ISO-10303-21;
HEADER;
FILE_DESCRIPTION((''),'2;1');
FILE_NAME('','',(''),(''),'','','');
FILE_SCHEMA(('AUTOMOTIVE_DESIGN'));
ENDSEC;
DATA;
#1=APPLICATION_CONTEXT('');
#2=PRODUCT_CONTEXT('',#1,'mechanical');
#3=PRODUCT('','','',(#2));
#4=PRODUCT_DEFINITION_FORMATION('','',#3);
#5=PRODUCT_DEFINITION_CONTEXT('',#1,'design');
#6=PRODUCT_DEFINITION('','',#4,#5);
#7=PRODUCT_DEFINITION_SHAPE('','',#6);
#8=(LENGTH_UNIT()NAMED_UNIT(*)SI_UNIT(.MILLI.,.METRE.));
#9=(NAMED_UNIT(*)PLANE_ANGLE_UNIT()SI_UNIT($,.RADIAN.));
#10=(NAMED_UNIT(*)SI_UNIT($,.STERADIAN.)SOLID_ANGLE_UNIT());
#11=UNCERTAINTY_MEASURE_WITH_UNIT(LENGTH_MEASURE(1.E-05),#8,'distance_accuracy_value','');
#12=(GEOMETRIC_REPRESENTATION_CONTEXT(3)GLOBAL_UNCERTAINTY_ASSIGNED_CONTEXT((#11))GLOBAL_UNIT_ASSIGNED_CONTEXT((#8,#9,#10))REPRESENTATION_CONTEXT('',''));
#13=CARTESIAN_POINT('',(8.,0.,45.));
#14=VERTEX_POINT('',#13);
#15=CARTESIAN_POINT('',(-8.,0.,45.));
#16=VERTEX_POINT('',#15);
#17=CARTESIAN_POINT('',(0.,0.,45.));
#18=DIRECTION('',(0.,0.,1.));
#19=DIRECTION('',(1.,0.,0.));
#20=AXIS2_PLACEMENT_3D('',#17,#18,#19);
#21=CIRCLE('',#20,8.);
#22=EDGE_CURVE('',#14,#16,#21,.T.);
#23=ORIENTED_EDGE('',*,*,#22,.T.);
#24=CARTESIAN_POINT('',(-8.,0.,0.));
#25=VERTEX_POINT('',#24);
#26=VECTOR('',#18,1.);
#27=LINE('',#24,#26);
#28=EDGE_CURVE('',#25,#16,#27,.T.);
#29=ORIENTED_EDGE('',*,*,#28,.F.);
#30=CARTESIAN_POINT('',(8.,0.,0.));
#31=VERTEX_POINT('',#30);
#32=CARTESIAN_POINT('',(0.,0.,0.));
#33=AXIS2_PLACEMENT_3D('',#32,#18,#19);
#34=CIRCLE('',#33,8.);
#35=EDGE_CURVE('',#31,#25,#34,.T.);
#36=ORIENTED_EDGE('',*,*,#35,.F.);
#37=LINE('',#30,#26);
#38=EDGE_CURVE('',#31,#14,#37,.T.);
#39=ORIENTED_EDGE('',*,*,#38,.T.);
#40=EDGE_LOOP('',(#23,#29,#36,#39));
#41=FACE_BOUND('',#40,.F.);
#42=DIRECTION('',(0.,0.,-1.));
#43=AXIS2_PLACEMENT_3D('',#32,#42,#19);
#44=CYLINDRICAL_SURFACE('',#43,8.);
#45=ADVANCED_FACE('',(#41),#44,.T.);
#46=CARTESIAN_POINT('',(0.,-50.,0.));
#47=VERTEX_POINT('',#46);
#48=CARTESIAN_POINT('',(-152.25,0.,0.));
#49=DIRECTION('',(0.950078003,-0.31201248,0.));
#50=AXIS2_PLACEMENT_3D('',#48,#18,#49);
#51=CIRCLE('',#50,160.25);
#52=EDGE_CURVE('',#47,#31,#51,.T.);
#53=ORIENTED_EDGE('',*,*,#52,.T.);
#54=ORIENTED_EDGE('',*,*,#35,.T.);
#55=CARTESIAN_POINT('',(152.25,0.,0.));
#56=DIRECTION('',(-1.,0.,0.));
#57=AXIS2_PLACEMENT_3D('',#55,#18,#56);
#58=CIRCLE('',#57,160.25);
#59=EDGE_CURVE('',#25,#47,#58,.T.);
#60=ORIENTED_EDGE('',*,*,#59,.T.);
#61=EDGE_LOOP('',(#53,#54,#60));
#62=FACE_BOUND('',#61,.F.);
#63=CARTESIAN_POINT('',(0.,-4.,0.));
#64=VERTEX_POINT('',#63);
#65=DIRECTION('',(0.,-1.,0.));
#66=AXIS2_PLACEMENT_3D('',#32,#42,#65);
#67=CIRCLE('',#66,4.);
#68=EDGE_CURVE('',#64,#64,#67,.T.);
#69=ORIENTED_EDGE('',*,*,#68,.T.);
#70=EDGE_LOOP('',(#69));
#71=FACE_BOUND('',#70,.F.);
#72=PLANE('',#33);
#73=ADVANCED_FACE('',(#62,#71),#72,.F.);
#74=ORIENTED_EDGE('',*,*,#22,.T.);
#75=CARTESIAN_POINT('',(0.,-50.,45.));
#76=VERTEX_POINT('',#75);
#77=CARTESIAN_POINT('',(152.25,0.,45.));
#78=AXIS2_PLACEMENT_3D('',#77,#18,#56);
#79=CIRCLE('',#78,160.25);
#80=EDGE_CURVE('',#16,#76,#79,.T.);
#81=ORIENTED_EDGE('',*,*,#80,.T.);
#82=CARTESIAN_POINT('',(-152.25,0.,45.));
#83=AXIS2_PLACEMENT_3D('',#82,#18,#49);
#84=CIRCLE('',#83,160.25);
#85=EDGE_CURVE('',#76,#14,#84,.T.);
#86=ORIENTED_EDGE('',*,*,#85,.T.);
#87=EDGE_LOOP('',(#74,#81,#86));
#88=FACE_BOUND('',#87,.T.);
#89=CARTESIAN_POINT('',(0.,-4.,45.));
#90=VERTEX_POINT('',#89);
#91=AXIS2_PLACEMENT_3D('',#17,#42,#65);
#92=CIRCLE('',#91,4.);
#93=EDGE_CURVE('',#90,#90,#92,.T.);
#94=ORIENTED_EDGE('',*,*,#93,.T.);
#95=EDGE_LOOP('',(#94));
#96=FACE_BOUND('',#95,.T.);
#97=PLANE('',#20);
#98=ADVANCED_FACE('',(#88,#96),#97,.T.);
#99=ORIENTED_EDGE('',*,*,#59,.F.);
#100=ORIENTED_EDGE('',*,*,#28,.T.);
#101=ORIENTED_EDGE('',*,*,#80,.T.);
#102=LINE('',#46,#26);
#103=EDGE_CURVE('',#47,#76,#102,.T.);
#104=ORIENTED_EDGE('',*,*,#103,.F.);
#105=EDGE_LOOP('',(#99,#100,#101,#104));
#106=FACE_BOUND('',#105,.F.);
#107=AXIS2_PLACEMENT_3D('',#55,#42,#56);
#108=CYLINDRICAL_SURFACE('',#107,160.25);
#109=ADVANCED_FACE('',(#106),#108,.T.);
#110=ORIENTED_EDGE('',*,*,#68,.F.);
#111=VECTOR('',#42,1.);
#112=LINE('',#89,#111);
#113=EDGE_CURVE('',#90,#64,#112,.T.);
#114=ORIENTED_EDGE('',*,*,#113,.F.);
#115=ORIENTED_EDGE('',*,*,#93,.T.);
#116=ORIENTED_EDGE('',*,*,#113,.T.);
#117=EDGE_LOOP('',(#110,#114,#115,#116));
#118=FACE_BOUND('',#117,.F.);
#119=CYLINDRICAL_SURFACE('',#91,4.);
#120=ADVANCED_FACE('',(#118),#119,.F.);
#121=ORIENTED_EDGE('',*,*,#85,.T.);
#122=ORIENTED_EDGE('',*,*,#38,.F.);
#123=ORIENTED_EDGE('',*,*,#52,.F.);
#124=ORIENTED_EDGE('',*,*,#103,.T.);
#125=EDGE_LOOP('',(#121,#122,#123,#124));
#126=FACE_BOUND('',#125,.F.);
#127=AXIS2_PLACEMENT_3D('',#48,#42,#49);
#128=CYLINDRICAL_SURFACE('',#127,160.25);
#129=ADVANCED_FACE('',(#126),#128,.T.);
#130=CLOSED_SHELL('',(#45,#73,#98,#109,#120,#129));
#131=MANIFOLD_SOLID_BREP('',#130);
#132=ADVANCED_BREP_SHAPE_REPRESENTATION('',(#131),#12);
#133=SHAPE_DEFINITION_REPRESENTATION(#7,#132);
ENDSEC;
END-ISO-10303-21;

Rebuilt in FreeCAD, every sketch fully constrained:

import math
import FreeCAD as App
import Part
import Sketcher
from FreeCAD import Vector
Q = App.Units.Quantity

doc = App.newDocument("Part")
params = doc.addObject("Spreadsheet::Sheet", "Params")
for row, (alias, value) in enumerate([
    ("sketch1_radius", "8 mm"),
    ("sketch1_radius2", "160.25 mm"),
    ("pad1_length", "45 mm"),
    ("sketch2_diameter", "8 mm"),
    ("hole_diameter", "8 mm"),
], start=1):
    params.set(f"A{row}", alias)
    params.set(f"B{row}", "=" + value)
    params.setAlias(f"B{row}", alias)

body = doc.addObject("PartDesign::Body", "Body")

# Sketch on XY plane
sketch1 = body.newObject("Sketcher::SketchObject", "Sketch")
sketch1.AttachmentSupport = (doc.getObject("XY_Plane"), [""])
sketch1.MapMode = "FlatFace"
sketch1.addGeometry([
    Part.ArcOfCircle(Part.Circle(Vector(-152, 0, 0), Vector(0, 0, 1), 160), math.radians(-18.18), math.radians(0)),
    Part.ArcOfCircle(Part.Circle(Vector(0, 0, 0), Vector(0, 0, 1), 8), math.radians(0), math.radians(180)),
    Part.ArcOfCircle(Part.Circle(Vector(152, 0, 0), Vector(0, 0, 1), 160), math.radians(180), math.radians(198.18)),
], False)
sketch1.addConstraint([
    Sketcher.Constraint("Tangent", 0, 2, 1, 1),
    Sketcher.Constraint("Tangent", 1, 2, 2, 1),
    Sketcher.Constraint("Coincident", 2, 2, 0, 1),
    Sketcher.Constraint("Coincident", 1, 3, -1, 1),
    Sketcher.Constraint("Equal", 0, 2),
    Sketcher.Constraint("PointOnObject", 0, 3, -1),
    Sketcher.Constraint("PointOnObject", 2, 3, -1),
    Sketcher.Constraint("Radius", 1, Q("8 mm")),
    Sketcher.Constraint("Radius", 0, Q("160.25 mm")),
])
sketch1.setExpression("Constraints[7]", "Params.sketch1_radius")
sketch1.setExpression("Constraints[8]", "Params.sketch1_radius2")
pad1 = body.newObject("PartDesign::Pad", "Pad")
pad1.Profile = sketch1
pad1.setExpression("Length", "Params.pad1_length")

# Sketch on XY plane
sketch2 = body.newObject("Sketcher::SketchObject", "Sketch001")
sketch2.AttachmentSupport = (doc.getObject("XY_Plane"), [""])
sketch2.MapMode = "FlatFace"
sketch2.AttachmentOffset = App.Placement(Vector(0, 0, 45), App.Rotation())
sketch2.addGeometry(Part.Circle(Vector(0, 0, 0), Vector(0, 0, 1), 4), False)
sketch2.addConstraint([
    Sketcher.Constraint("Coincident", 0, 3, -1, 1),
    Sketcher.Constraint("Diameter", 0, Q("8 mm")),
])
sketch2.setExpression("Constraints[1]", "Params.sketch2_diameter")
doc.recompute()
hole = body.newObject("PartDesign::Hole", "Hole")
hole.Profile = sketch2
hole.ThreadType = "None"
hole.setExpression("Diameter", "Params.hole_diameter")
hole.DepthType = "ThroughAll"

doc.recompute()
